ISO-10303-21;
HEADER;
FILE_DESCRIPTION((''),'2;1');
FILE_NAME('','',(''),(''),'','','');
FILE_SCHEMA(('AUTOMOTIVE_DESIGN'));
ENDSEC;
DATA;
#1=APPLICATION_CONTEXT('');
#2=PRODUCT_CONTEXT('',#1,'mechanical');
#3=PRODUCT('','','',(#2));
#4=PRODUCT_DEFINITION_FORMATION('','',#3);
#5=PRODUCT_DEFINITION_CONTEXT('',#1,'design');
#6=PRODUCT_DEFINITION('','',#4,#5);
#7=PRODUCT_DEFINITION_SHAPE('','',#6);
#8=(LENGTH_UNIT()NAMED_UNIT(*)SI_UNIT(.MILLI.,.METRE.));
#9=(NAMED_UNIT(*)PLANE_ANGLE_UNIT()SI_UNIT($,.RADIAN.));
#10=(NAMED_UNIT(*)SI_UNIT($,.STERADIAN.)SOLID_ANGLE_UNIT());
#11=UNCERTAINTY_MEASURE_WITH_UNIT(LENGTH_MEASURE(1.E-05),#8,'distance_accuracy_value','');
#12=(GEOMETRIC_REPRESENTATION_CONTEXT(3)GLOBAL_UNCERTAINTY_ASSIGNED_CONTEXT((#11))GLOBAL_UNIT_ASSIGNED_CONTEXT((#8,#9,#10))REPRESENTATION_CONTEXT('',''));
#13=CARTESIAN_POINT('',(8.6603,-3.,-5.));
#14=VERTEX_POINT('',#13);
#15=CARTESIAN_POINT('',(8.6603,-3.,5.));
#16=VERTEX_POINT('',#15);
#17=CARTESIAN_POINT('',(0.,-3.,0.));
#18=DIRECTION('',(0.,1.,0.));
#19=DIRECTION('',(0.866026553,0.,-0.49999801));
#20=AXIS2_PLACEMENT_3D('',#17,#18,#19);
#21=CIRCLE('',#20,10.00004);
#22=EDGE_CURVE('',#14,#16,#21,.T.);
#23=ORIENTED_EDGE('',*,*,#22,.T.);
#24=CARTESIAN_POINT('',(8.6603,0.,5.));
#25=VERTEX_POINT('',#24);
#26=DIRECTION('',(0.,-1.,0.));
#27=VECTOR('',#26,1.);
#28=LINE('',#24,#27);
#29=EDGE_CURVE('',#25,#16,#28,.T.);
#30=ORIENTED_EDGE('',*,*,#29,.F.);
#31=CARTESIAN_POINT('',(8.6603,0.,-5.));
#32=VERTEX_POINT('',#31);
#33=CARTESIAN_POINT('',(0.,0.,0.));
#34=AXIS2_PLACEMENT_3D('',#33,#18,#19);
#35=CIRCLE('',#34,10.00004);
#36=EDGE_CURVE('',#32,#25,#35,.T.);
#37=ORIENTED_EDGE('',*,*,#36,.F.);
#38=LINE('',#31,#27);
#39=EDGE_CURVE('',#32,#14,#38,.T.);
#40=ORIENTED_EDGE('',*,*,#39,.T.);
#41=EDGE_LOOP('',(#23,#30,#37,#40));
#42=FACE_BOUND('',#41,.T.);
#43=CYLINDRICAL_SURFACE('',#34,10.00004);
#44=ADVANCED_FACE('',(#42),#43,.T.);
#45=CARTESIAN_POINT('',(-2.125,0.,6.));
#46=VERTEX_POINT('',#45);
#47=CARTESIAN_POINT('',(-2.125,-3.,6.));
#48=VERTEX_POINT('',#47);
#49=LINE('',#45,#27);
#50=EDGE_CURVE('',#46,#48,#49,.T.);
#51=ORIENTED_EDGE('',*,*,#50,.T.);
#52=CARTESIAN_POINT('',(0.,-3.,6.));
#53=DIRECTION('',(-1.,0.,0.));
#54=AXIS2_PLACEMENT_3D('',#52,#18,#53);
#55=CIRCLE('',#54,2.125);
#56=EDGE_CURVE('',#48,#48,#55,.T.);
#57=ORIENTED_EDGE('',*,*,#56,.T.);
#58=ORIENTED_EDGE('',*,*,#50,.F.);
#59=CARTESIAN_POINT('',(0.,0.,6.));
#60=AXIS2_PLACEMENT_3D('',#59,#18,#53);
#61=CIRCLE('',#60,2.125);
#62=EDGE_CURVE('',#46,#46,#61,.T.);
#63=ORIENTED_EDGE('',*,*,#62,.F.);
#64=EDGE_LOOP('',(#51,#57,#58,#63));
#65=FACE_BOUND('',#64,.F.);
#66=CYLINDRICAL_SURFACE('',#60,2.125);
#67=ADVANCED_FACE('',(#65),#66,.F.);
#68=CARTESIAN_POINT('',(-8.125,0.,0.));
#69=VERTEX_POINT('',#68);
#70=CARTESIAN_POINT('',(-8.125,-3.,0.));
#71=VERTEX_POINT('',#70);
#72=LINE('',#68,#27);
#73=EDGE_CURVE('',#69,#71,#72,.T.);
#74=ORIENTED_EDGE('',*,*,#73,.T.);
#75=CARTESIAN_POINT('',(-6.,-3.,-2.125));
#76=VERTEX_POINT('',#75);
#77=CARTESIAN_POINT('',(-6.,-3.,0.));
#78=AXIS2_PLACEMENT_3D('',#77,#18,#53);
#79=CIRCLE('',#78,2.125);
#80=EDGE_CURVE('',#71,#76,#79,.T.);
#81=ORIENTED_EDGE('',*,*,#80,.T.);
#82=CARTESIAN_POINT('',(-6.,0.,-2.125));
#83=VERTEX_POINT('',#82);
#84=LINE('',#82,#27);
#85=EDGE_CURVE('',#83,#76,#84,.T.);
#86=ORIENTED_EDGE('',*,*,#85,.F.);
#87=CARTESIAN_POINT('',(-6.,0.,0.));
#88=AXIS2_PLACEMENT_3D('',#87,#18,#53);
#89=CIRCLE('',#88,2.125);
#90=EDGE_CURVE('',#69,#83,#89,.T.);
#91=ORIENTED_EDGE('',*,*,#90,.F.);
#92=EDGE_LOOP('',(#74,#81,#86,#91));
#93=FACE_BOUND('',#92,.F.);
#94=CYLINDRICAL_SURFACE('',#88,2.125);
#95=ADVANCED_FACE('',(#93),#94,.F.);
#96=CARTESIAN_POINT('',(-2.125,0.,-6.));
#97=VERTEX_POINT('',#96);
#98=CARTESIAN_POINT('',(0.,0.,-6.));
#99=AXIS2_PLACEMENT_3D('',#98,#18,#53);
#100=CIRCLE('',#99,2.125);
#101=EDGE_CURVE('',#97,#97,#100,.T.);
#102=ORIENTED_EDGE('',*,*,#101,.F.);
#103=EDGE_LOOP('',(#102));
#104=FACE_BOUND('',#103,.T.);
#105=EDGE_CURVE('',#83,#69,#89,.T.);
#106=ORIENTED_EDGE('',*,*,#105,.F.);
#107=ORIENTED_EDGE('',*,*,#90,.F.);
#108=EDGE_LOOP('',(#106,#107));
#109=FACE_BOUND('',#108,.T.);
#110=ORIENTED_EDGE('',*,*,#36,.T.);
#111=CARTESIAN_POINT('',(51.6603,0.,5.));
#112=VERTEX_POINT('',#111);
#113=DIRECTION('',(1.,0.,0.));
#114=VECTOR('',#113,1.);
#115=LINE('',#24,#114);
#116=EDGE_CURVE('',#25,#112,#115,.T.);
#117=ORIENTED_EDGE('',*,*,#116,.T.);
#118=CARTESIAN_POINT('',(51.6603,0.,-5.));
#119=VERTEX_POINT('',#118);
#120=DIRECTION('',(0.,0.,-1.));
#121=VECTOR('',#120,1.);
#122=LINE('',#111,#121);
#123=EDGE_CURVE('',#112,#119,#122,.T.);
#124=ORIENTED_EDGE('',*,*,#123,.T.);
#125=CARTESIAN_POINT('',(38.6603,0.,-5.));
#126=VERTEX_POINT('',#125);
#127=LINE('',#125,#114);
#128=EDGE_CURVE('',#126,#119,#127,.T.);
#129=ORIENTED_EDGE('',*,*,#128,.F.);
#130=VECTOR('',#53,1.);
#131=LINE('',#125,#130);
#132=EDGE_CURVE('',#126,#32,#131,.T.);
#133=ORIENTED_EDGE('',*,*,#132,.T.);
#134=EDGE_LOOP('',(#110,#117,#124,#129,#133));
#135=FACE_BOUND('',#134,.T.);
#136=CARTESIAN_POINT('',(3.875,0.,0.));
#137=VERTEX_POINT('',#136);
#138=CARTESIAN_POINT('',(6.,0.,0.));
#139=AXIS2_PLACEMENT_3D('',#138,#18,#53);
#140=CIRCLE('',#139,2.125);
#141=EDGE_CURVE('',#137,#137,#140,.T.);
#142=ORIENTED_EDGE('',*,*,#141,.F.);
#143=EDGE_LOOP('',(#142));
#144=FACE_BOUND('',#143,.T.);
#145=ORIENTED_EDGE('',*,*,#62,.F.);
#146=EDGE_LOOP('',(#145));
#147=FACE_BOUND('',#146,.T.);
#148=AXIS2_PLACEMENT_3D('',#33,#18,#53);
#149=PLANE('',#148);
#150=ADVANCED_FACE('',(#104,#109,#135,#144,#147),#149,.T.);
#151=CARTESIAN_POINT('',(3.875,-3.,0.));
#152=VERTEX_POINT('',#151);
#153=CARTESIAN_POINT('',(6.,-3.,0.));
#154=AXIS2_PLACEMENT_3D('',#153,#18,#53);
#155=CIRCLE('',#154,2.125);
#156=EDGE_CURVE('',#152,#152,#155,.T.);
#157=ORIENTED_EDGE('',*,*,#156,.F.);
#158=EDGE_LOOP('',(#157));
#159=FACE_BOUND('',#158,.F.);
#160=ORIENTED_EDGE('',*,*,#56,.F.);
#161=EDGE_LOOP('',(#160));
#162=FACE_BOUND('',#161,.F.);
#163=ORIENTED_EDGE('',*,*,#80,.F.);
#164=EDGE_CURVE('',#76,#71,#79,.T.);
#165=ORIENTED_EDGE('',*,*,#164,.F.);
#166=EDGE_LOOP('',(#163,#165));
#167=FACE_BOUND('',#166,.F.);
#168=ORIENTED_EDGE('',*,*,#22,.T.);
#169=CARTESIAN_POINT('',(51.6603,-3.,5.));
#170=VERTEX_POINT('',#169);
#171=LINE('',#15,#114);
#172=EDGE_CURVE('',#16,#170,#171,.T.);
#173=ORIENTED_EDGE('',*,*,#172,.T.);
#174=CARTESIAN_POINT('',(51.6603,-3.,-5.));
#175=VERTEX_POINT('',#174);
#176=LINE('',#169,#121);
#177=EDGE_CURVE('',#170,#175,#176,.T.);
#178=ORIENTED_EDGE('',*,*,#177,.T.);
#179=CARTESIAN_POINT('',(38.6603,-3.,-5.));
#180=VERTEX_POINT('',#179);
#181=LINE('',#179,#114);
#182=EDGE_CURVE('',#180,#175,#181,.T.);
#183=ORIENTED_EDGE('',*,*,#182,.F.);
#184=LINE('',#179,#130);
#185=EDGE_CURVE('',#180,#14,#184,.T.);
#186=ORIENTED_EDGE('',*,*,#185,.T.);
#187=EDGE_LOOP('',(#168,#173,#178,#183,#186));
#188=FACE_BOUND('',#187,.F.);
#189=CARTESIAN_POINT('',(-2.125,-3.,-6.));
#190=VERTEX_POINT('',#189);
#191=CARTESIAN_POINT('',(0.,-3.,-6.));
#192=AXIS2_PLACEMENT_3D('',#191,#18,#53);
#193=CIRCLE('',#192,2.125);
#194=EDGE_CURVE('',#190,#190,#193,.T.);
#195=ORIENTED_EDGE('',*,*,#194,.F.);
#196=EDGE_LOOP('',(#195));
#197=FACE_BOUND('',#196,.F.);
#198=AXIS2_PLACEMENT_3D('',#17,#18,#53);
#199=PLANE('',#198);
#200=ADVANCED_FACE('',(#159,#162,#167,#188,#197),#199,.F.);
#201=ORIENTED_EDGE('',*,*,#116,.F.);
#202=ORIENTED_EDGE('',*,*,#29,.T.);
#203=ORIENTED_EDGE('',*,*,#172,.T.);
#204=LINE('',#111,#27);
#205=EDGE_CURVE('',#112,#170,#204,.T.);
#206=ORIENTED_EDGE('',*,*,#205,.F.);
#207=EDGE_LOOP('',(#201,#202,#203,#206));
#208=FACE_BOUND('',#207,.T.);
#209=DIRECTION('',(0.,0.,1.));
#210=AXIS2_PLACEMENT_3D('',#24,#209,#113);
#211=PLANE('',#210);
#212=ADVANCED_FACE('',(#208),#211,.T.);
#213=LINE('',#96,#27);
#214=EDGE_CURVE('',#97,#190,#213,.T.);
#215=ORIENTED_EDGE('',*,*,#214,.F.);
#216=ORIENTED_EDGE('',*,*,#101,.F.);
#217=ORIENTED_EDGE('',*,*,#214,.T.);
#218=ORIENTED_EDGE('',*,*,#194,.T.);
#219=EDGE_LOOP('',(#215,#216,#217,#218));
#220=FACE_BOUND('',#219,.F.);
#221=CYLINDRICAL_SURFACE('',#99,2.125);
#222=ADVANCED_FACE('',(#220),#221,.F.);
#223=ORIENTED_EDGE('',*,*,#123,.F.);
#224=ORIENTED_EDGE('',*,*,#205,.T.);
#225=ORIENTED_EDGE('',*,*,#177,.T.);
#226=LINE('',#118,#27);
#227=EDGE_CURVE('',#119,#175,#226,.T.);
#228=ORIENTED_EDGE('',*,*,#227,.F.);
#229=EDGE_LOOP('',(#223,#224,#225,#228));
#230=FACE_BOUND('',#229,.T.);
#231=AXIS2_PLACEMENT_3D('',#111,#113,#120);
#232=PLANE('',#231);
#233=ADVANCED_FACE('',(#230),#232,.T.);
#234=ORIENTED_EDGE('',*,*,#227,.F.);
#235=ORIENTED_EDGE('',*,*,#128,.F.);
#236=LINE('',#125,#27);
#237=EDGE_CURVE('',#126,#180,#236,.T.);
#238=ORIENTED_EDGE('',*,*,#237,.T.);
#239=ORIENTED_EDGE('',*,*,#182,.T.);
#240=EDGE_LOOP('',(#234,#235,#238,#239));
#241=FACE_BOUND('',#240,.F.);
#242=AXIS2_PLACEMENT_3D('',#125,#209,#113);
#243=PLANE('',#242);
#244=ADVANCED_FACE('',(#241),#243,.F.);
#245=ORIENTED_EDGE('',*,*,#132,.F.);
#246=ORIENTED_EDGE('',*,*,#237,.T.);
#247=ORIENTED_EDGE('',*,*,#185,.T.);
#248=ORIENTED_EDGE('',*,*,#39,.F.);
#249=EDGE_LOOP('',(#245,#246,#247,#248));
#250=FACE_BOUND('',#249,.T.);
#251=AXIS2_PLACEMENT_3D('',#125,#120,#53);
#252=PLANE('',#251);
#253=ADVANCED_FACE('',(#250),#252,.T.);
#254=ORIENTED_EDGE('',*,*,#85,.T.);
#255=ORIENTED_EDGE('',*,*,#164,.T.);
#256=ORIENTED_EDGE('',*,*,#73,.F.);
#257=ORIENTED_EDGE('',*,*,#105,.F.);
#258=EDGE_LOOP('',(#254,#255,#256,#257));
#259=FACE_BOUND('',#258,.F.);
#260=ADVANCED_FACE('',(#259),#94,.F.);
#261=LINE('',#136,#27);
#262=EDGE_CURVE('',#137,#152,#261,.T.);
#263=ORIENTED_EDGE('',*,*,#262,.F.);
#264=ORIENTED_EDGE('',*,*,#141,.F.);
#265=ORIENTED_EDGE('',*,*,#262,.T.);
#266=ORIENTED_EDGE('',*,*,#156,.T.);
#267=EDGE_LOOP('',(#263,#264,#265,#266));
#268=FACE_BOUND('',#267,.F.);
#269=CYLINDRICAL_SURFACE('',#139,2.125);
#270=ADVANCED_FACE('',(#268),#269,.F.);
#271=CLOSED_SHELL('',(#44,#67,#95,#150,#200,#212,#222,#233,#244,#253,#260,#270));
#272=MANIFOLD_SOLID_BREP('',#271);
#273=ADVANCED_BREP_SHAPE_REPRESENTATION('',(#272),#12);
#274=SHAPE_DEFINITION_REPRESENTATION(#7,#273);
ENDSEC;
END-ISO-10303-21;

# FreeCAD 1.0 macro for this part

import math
import FreeCAD as App
import Part
import Sketcher

V = App.Vector

doc = App.newDocument("Part")
body = doc.addObject("PartDesign::Body", "Body")

sketch1 = doc.addObject("Sketcher::SketchObject", "Sketch")
body.addObject(sketch1)
sketch1.AttachmentSupport = (doc.XZ_Plane, [""])
sketch1.MapMode = "FlatFace"
sketch1.addGeometry([
    Part.LineSegment(V(51.7, -5, 0), V(8.7, -5, 0)),
    Part.ArcOfCircle(Part.Circle(V(0, 0, 0), V(0, 0, 1), 10), math.radians(30), math.radians(330)),
    Part.LineSegment(V(8.7, 5, 0), V(51.7, 5, 0)),
    Part.LineSegment(V(51.7, 5, 0), V(51.7, -5, 0)),
    Part.Circle(V(0, -6, 0), V(0, 0, 1), 2.1),
    Part.Circle(V(6, 0, 0), V(0, 0, 1), 2.1),
    Part.Circle(V(-6, 0, 0), V(0, 0, 1), 2.1),
    Part.Circle(V(0, 6, 0), V(0, 0, 1), 2.1),
], False)
sketch1.addConstraint([
    Sketcher.Constraint("Coincident", 0, 2, 1, 2),
    Sketcher.Constraint("Coincident", 1, 1, 2, 1),
    Sketcher.Constraint("Coincident", 2, 2, 3, 1),
    Sketcher.Constraint("Coincident", 3, 2, 0, 1),
    Sketcher.Constraint("Horizontal", 0),
    Sketcher.Constraint("Horizontal", 2),
    Sketcher.Constraint("Vertical", 3),
    Sketcher.Constraint("Coincident", 1, 3, -1, 1),
    Sketcher.Constraint("Equal", 4, 5),
    Sketcher.Constraint("Equal", 5, 6),
    Sketcher.Constraint("Equal", 6, 7),
    Sketcher.Constraint("Symmetric", 5, 3, 6, 3, -1, 1),
    Sketcher.Constraint("Symmetric", 4, 3, 7, 3, -1, 1),
    Sketcher.Constraint("PointOnObject", 4, 3, -2),
    Sketcher.Constraint("PointOnObject", 5, 3, -1),
    Sketcher.Constraint("Vertical", 0, 2, 1, 1),
    Sketcher.Constraint("Radius", 1, 10.0),
    Sketcher.Constraint("Diameter", 4, 4.25),
    Sketcher.Constraint("DistanceX", 0, 2, 0, 1, 43.0),
    Sketcher.Constraint("DistanceY", 4, 3, -1, 1, 6.0),
    Sketcher.Constraint("DistanceX", -1, 1, 5, 3, 6.0),
    Sketcher.Constraint("DistanceY", 3, 2, 3, 1, 10.0),
])
pad1 = doc.addObject("PartDesign::Pad", "Pad")
body.addObject(pad1)
pad1.Profile = sketch1
pad1.Length = 3

doc.recompute()
